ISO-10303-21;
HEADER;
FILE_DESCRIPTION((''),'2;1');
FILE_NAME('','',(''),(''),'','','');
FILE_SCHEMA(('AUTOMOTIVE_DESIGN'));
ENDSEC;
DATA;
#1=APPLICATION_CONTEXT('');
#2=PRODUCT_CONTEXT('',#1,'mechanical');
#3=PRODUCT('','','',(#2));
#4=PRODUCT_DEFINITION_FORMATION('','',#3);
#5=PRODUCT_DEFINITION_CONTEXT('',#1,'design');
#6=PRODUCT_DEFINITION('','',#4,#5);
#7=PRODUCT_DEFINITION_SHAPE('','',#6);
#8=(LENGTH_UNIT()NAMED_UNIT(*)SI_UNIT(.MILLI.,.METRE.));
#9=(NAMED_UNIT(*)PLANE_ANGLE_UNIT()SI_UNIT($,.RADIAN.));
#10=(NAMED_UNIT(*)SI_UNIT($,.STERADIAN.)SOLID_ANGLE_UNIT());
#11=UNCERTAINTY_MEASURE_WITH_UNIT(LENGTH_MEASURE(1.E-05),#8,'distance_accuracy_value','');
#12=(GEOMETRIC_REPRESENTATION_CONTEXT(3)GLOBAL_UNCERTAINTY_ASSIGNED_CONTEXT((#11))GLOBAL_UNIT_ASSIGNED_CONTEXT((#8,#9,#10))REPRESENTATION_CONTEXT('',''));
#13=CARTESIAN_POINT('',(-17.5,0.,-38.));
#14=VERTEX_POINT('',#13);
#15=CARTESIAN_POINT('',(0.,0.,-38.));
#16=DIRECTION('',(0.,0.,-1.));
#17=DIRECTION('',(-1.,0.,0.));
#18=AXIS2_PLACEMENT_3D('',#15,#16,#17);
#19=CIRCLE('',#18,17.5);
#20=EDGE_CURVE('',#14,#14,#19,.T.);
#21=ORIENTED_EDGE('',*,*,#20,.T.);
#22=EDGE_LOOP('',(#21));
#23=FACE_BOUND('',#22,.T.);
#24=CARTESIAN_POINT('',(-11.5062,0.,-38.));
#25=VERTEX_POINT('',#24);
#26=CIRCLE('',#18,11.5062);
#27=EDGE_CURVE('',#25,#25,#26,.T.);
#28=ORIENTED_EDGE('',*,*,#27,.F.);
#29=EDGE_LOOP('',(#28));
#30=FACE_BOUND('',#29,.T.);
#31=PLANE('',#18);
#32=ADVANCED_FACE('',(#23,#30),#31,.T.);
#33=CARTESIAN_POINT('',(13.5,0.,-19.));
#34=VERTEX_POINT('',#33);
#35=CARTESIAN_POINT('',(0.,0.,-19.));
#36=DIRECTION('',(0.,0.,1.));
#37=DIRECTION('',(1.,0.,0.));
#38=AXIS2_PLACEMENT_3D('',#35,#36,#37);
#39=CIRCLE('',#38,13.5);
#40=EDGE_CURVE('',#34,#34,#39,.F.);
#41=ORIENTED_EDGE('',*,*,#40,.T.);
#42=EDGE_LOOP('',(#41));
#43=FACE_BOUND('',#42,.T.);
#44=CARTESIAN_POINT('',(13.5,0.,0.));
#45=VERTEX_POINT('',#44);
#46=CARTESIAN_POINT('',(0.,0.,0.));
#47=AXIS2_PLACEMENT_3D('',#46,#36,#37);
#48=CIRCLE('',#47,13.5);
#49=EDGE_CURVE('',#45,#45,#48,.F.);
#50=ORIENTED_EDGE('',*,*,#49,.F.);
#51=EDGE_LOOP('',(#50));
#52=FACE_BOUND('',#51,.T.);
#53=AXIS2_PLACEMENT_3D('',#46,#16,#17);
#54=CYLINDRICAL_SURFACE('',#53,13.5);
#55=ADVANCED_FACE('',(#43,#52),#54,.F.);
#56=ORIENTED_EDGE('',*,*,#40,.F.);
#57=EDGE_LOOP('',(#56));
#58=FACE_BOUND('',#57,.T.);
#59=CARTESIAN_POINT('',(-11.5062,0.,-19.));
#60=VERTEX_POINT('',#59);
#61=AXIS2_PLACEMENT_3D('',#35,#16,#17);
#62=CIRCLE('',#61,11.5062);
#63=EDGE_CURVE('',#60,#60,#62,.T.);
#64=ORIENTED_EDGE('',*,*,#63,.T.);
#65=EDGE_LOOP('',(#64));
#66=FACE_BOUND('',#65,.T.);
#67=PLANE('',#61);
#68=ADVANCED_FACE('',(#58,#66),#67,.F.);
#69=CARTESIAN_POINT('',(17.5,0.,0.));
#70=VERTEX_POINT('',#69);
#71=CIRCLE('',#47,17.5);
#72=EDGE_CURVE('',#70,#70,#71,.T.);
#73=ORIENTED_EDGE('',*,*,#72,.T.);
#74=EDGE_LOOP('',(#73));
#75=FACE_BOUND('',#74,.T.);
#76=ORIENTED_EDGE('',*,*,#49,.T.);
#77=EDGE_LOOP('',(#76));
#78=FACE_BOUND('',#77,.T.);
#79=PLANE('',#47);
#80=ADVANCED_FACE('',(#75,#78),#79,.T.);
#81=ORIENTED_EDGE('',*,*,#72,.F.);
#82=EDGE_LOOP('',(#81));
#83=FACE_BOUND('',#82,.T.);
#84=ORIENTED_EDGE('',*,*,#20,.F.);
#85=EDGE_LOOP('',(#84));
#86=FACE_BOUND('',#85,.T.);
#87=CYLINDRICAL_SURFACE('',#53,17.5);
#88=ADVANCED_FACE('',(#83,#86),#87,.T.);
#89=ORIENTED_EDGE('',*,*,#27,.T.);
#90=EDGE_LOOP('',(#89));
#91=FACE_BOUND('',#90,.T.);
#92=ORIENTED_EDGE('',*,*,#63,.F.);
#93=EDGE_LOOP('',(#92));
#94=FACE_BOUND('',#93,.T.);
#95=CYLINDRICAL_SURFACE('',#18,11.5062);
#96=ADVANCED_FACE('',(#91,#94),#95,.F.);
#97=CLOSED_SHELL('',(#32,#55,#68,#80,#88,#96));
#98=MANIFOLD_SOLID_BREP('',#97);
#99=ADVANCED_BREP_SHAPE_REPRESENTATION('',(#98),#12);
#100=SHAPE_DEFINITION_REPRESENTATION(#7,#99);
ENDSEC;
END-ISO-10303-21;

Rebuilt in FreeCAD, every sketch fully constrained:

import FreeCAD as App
import Part
import Sketcher

doc = App.newDocument("Part")
params = doc.addObject("Spreadsheet::Sheet", "Params")
for row, (alias, value) in enumerate([
    ("sketch1_diameter", "35 mm"),
    ("sketch1_diameter2", "27 mm"),
    ("sketch2_height", "19 mm"),
    ("sketch3_diameter", "35 mm"),
    ("sketch4_height", "19 mm"),
    ("hole_diameter", "23.0124 mm"),
], start=1):
    params.set(f"A{row}", alias)
    params.set(f"B{row}", "=" + value)
    params.setAlias(f"B{row}", alias)

body = doc.addObject("PartDesign::Body", "Body")

# Sketch on XY plane
sketch1 = body.newObject("Sketcher::SketchObject", "Sketch")
sketch1.AttachmentSupport = (doc.getObject("XY_Plane"), [""])
sketch1.MapMode = "FlatFace"
sketch1.addGeometry([
    Part.Circle(App.Vector(0, 0, 0), App.Vector(0, 0, 1), 18),
    Part.Circle(App.Vector(0, 0, 0), App.Vector(0, 0, 1), 14),
], False)
sketch1.addConstraint([
    Sketcher.Constraint("Coincident", 0, 3, -1, 1),
    Sketcher.Constraint("Coincident", 1, 3, -1, 1),
    Sketcher.Constraint("Diameter", 0, 35.0),
    Sketcher.Constraint("Diameter", 1, 27.0),
])
sketch1.setExpression("Constraints[2]", "Params.sketch1_diameter")
sketch1.setExpression("Constraints[3]", "Params.sketch1_diameter2")

# Sketch on XZ plane
sketch2 = body.newObject("Sketcher::SketchObject", "Sketch001")
sketch2.AttachmentSupport = (doc.getObject("XZ_Plane"), [""])
sketch2.MapMode = "FlatFace"
sketch2.addGeometry(Part.LineSegment(App.Vector(0, 0, 0), App.Vector(0, -19, 0)), False)
sketch2.addConstraint([
    Sketcher.Constraint("Vertical", 0),
    Sketcher.Constraint("Coincident", 0, 1, -1, 1),
    Sketcher.Constraint("DistanceY", 0, 2, 0, 1, 19.0),
])
sketch2.setExpression("Constraints[2]", "Params.sketch2_height")
doc.recompute()

additivepipe = body.newObject("PartDesign::AdditivePipe", "AdditivePipe")
additivepipe.Profile = sketch1
additivepipe.Spine = (sketch2, ["Edge1"])

# Sketch on XY plane
sketch3 = body.newObject("Sketcher::SketchObject", "Sketch002")
sketch3.AttachmentSupport = (doc.getObject("XY_Plane"), [""])
sketch3.MapMode = "FlatFace"
sketch3.AttachmentOffset = App.Placement(App.Vector(0, 0, -19), App.Rotation())
sketch3.addGeometry(Part.Circle(App.Vector(0, 0, 0), App.Vector(0, 0, 1), 18), False)
sketch3.addConstraint([
    Sketcher.Constraint("Coincident", 0, 3, -1, 1),
    Sketcher.Constraint("Diameter", 0, 35.0),
])
sketch3.setExpression("Constraints[1]", "Params.sketch3_diameter")

# Sketch on XZ plane
sketch4 = body.newObject("Sketcher::SketchObject", "Sketch003")
sketch4.AttachmentSupport = (doc.getObject("XZ_Plane"), [""])
sketch4.MapMode = "FlatFace"
sketch4.addGeometry(Part.LineSegment(App.Vector(0, -19, 0), App.Vector(0, -38, 0)), False)
sketch4.addConstraint([
    Sketcher.Constraint("Vertical", 0),
    Sketcher.Constraint("PointOnObject", 0, 1, -2),
    Sketcher.Constraint("DistanceY", 0, 2, 0, 1, 19.0),
    Sketcher.Constraint("DistanceY", 0, 1, -1, 1, 19.0),
])
sketch4.setExpression("Constraints[2]", "Params.sketch4_height")
doc.recompute()

additivepipe2 = body.newObject("PartDesign::AdditivePipe", "AdditivePipe001")
additivepipe2.Profile = sketch3
additivepipe2.Spine = (sketch4, ["Edge1"])

# Sketch on XY plane
sketch5 = body.newObject("Sketcher::SketchObject", "Sketch004")
sketch5.AttachmentSupport = (doc.getObject("XY_Plane"), [""])
sketch5.MapMode = "FlatFace"
sketch5.AttachmentOffset = App.Placement(App.Vector(0, 0, -38), App.Rotation())
sketch5.addGeometry(Part.Circle(App.Vector(0, 0, 0), App.Vector(0, 0, 1), 12), False)
sketch5.addConstraint([
    Sketcher.Constraint("Coincident", 0, 3, -1, 1),
    Sketcher.Constraint("Diameter", 0, 23.0124),
])
doc.recompute()
hole = body.newObject("PartDesign::Hole", "Hole")
hole.Profile = sketch5
hole.ThreadType = "None"
hole.setExpression("Diameter", "Params.hole_diameter")
hole.DepthType = "ThroughAll"
hole.Reversed = True

doc.recompute()
